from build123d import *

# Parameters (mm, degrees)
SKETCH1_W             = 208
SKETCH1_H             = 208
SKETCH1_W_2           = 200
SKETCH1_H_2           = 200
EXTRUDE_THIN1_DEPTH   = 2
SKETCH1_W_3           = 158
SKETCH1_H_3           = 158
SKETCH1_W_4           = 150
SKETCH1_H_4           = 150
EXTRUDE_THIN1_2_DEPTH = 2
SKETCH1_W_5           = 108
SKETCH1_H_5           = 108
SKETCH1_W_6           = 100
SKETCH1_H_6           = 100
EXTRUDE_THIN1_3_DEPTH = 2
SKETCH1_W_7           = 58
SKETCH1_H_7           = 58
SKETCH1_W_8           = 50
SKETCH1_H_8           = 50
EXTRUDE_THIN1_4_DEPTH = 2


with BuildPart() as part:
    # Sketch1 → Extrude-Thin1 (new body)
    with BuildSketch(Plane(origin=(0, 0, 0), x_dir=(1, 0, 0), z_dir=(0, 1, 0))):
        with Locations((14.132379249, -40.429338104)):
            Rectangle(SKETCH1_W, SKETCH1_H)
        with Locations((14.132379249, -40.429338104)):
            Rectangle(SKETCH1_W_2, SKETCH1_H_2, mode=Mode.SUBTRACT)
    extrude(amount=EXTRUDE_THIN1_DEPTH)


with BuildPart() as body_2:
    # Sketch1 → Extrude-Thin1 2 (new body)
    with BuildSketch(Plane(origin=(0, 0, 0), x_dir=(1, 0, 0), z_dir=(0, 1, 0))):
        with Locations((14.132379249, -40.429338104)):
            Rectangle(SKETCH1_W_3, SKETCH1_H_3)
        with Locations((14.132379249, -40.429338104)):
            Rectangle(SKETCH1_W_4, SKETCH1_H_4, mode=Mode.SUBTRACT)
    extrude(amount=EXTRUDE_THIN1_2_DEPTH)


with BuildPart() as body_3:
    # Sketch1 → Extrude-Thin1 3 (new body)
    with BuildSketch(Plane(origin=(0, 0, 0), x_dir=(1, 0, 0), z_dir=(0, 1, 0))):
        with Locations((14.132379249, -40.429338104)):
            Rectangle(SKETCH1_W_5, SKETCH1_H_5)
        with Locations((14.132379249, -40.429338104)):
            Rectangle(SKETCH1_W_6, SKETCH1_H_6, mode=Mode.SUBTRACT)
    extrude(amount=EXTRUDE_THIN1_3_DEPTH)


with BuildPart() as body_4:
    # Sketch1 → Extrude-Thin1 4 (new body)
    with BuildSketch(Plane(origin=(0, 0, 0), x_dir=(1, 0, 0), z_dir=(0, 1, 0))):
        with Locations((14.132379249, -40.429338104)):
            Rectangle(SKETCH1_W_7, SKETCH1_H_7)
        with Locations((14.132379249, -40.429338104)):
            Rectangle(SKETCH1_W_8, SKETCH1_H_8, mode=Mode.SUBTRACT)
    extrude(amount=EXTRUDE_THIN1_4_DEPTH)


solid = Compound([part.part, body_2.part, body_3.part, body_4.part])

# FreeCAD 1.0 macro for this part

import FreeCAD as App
import Part
import Sketcher
from FreeCAD import Vector
Q = App.Units.Quantity

doc = App.newDocument("Part")
body = doc.addObject("PartDesign::Body", "Body")

# Sketch on XZ plane
sketch1 = doc.addObject("Sketcher::SketchObject", "Sketch")
body.addObject(sketch1)
sketch1.AttachmentSupport = (doc.XZ_Plane, [""])
sketch1.MapMode = "FlatFace"
sketch1.addGeometry(Part.LineSegment(Vector(-89.867621, -63.570662, 0), Vector(-89.867621, 144.429338, 0)), False)
sketch1.addGeometry(Part.LineSegment(Vector(-89.867621, 144.429338, 0), Vector(118.132379, 144.429338, 0)), False)
sketch1.addGeometry(Part.LineSegment(Vector(118.132379, 144.429338, 0), Vector(118.132379, -63.570662, 0)), False)
sketch1.addGeometry(Part.LineSegment(Vector(118.132379, -63.570662, 0), Vector(-89.867621, -63.570662, 0)), False)
sketch1.addGeometry(Part.LineSegment(Vector(114.132379, 140.429338, 0), Vector(-85.867621, 140.429338, 0)), False)
sketch1.addGeometry(Part.LineSegment(Vector(-85.867621, 140.429338, 0), Vector(-85.867621, -59.570662, 0)), False)
sketch1.addGeometry(Part.LineSegment(Vector(-85.867621, -59.570662, 0), Vector(114.132379, -59.570662, 0)), False)
sketch1.addGeometry(Part.LineSegment(Vector(114.132379, -59.570662, 0), Vector(114.132379, 140.429338, 0)), False)
sketch1.addConstraint(Sketcher.Constraint("Coincident", 0, 2, 1, 1))
sketch1.addConstraint(Sketcher.Constraint("Coincident", 1, 2, 2, 1))
sketch1.addConstraint(Sketcher.Constraint("Coincident", 2, 2, 3, 1))
sketch1.addConstraint(Sketcher.Constraint("Coincident", 3, 2, 0, 1))
sketch1.addConstraint(Sketcher.Constraint("Coincident", 4, 2, 5, 1))
sketch1.addConstraint(Sketcher.Constraint("Coincident", 5, 2, 6, 1))
sketch1.addConstraint(Sketcher.Constraint("Coincident", 6, 2, 7, 1))
sketch1.addConstraint(Sketcher.Constraint("Coincident", 7, 2, 4, 1))
sketch1.addConstraint(Sketcher.Constraint("Vertical", 0))
sketch1.addConstraint(Sketcher.Constraint("Horizontal", 1))
sketch1.addConstraint(Sketcher.Constraint("Vertical", 2))
sketch1.addConstraint(Sketcher.Constraint("Horizontal", 3))
sketch1.addConstraint(Sketcher.Constraint("Horizontal", 4))
sketch1.addConstraint(Sketcher.Constraint("Vertical", 5))
sketch1.addConstraint(Sketcher.Constraint("Horizontal", 6))
sketch1.addConstraint(Sketcher.Constraint("Vertical", 7))
sketch1.addConstraint(Sketcher.Constraint("Equal", 3, 0))
sketch1.addConstraint(Sketcher.Constraint("Equal", 6, 5))
sketch1.addConstraint(Sketcher.Constraint("DistanceX", 1, 1, 1, 2, Q("208 mm")))
sketch1.addConstraint(Sketcher.Constraint("DistanceX", 4, 2, 4, 1, Q("200 mm")))
sketch1.addConstraint(Sketcher.Constraint("DistanceX", 0, 2, 4, 2, Q("4 mm")))
sketch1.addConstraint(Sketcher.Constraint("DistanceY", 4, 2, 0, 2, Q("4 mm")))
sketch1.addConstraint(Sketcher.Constraint("DistanceX", 0, 2, -1, 1, Q("89.867621 mm")))
sketch1.addConstraint(Sketcher.Constraint("DistanceY", -1, 1, 0, 2, Q("144.429338 mm")))
pad1 = doc.addObject("PartDesign::Pad", "Pad")
body.addObject(pad1)
pad1.Profile = sketch1
pad1.Length = 2
pad1.Reversed = True
body2 = doc.addObject("PartDesign::Body", "Body001")

# Sketch on XZ plane
sketch2 = doc.addObject("Sketcher::SketchObject", "Sketch001")
body2.addObject(sketch2)
sketch2.AttachmentSupport = (doc.getObject("XZ_Plane001"), [""])
sketch2.MapMode = "FlatFace"
sketch2.addGeometry(Part.LineSegment(Vector(-64.867621, -38.570662, 0), Vector(-64.867621, 119.429338, 0)), False)
sketch2.addGeometry(Part.LineSegment(Vector(-64.867621, 119.429338, 0), Vector(93.132379, 119.429338, 0)), False)
sketch2.addGeometry(Part.LineSegment(Vector(93.132379, 119.429338, 0), Vector(93.132379, -38.570662, 0)), False)
sketch2.addGeometry(Part.LineSegment(Vector(93.132379, -38.570662, 0), Vector(-64.867621, -38.570662, 0)), False)
sketch2.addGeometry(Part.LineSegment(Vector(89.132379, 115.429338, 0), Vector(-60.867621, 115.429338, 0)), False)
sketch2.addGeometry(Part.LineSegment(Vector(-60.867621, 115.429338, 0), Vector(-60.867621, -34.570662, 0)), False)
sketch2.addGeometry(Part.LineSegment(Vector(-60.867621, -34.570662, 0), Vector(89.132379, -34.570662, 0)), False)
sketch2.addGeometry(Part.LineSegment(Vector(89.132379, -34.570662, 0), Vector(89.132379, 115.429338, 0)), False)
sketch2.addConstraint(Sketcher.Constraint("Coincident", 0, 2, 1, 1))
sketch2.addConstraint(Sketcher.Constraint("Coincident", 1, 2, 2, 1))
sketch2.addConstraint(Sketcher.Constraint("Coincident", 2, 2, 3, 1))
sketch2.addConstraint(Sketcher.Constraint("Coincident", 3, 2, 0, 1))
sketch2.addConstraint(Sketcher.Constraint("Coincident", 4, 2, 5, 1))
sketch2.addConstraint(Sketcher.Constraint("Coincident", 5, 2, 6, 1))
sketch2.addConstraint(Sketcher.Constraint("Coincident", 6, 2, 7, 1))
sketch2.addConstraint(Sketcher.Constraint("Coincident", 7, 2, 4, 1))
sketch2.addConstraint(Sketcher.Constraint("Vertical", 0))
sketch2.addConstraint(Sketcher.Constraint("Horizontal", 1))
sketch2.addConstraint(Sketcher.Constraint("Vertical", 2))
sketch2.addConstraint(Sketcher.Constraint("Horizontal", 3))
sketch2.addConstraint(Sketcher.Constraint("Horizontal", 4))
sketch2.addConstraint(Sketcher.Constraint("Vertical", 5))
sketch2.addConstraint(Sketcher.Constraint("Horizontal", 6))
sketch2.addConstraint(Sketcher.Constraint("Vertical", 7))
sketch2.addConstraint(Sketcher.Constraint("Equal", 3, 0))
sketch2.addConstraint(Sketcher.Constraint("Equal", 6, 5))
sketch2.addConstraint(Sketcher.Constraint("DistanceX", 1, 1, 1, 2, Q("158 mm")))
sketch2.addConstraint(Sketcher.Constraint("DistanceX", 4, 2, 4, 1, Q("150 mm")))
sketch2.addConstraint(Sketcher.Constraint("DistanceX", 0, 2, 4, 2, Q("4 mm")))
sketch2.addConstraint(Sketcher.Constraint("DistanceY", 4, 2, 0, 2, Q("4 mm")))
sketch2.addConstraint(Sketcher.Constraint("DistanceX", 0, 2, -1, 1, Q("64.867621 mm")))
sketch2.addConstraint(Sketcher.Constraint("DistanceY", -1, 1, 0, 2, Q("119.429338 mm")))
pad2 = doc.addObject("PartDesign::Pad", "Pad001")
body2.addObject(pad2)
pad2.Profile = sketch2
pad2.Length = 2
pad2.Reversed = True
body3 = doc.addObject("PartDesign::Body", "Body002")

# Sketch on XZ plane
sketch3 = doc.addObject("Sketcher::SketchObject", "Sketch002")
body3.addObject(sketch3)
sketch3.AttachmentSupport = (doc.getObject("XZ_Plane002"), [""])
sketch3.MapMode = "FlatFace"
sketch3.addGeometry(Part.LineSegment(Vector(-39.867621, -13.570662, 0), Vector(-39.867621, 94.429338, 0)), False)
sketch3.addGeometry(Part.LineSegment(Vector(-39.867621, 94.429338, 0), Vector(68.132379, 94.429338, 0)), False)
sketch3.addGeometry(Part.LineSegment(Vector(68.132379, 94.429338, 0), Vector(68.132379, -13.570662, 0)), False)
sketch3.addGeometry(Part.LineSegment(Vector(68.132379, -13.570662, 0), Vector(-39.867621, -13.570662, 0)), False)
sketch3.addGeometry(Part.LineSegment(Vector(64.132379, 90.429338, 0), Vector(-35.867621, 90.429338, 0)), False)
sketch3.addGeometry(Part.LineSegment(Vector(-35.867621, 90.429338, 0), Vector(-35.867621, -9.570662, 0)), False)
sketch3.addGeometry(Part.LineSegment(Vector(-35.867621, -9.570662, 0), Vector(64.132379, -9.570662, 0)), False)
sketch3.addGeometry(Part.LineSegment(Vector(64.132379, -9.570662, 0), Vector(64.132379, 90.429338, 0)), False)
sketch3.addConstraint(Sketcher.Constraint("Coincident", 0, 2, 1, 1))
sketch3.addConstraint(Sketcher.Constraint("Coincident", 1, 2, 2, 1))
sketch3.addConstraint(Sketcher.Constraint("Coincident", 2, 2, 3, 1))
sketch3.addConstraint(Sketcher.Constraint("Coincident", 3, 2, 0, 1))
sketch3.addConstraint(Sketcher.Constraint("Coincident", 4, 2, 5, 1))
sketch3.addConstraint(Sketcher.Constraint("Coincident", 5, 2, 6, 1))
sketch3.addConstraint(Sketcher.Constraint("Coincident", 6, 2, 7, 1))
sketch3.addConstraint(Sketcher.Constraint("Coincident", 7, 2, 4, 1))
sketch3.addConstraint(Sketcher.Constraint("Vertical", 0))
sketch3.addConstraint(Sketcher.Constraint("Horizontal", 1))
sketch3.addConstraint(Sketcher.Constraint("Vertical", 2))
sketch3.addConstraint(Sketcher.Constraint("Horizontal", 3))
sketch3.addConstraint(Sketcher.Constraint("Horizontal", 4))
sketch3.addConstraint(Sketcher.Constraint("Vertical", 5))
sketch3.addConstraint(Sketcher.Constraint("Horizontal", 6))
sketch3.addConstraint(Sketcher.Constraint("Vertical", 7))
sketch3.addConstraint(Sketcher.Constraint("Equal", 3, 0))
sketch3.addConstraint(Sketcher.Constraint("Equal", 6, 5))
sketch3.addConstraint(Sketcher.Constraint("DistanceX", 1, 1, 1, 2, Q("108 mm")))
sketch3.addConstraint(Sketcher.Constraint("DistanceX", 4, 2, 4, 1, Q("100 mm")))
sketch3.addConstraint(Sketcher.Constraint("DistanceX", 0, 2, 4, 2, Q("4 mm")))
sketch3.addConstraint(Sketcher.Constraint("DistanceY", 4, 2, 0, 2, Q("4 mm")))
sketch3.addConstraint(Sketcher.Constraint("DistanceX", 0, 2, -1, 1, Q("39.867621 mm")))
sketch3.addConstraint(Sketcher.Constraint("DistanceY", -1, 1, 0, 2, Q("94.429338 mm")))
pad3 = doc.addObject("PartDesign::Pad", "Pad002")
body3.addObject(pad3)
pad3.Profile = sketch3
pad3.Length = 2
pad3.Reversed = True
body4 = doc.addObject("PartDesign::Body", "Body003")

# Sketch on XZ plane
sketch4 = doc.addObject("Sketcher::SketchObject", "Sketch003")
body4.addObject(sketch4)
sketch4.AttachmentSupport = (doc.getObject("XZ_Plane003"), [""])
sketch4.MapMode = "FlatFace"
sketch4.addGeometry(Part.LineSegment(Vector(-14.867621, 11.429338, 0), Vector(-14.867621, 69.429338, 0)), False)
sketch4.addGeometry(Part.LineSegment(Vector(-14.867621, 69.429338, 0), Vector(43.132379, 69.429338, 0)), False)
sketch4.addGeometry(Part.LineSegment(Vector(43.132379, 69.429338, 0), Vector(43.132379, 11.429338, 0)), False)
sketch4.addGeometry(Part.LineSegment(Vector(43.132379, 11.429338, 0), Vector(-14.867621, 11.429338, 0)), False)
sketch4.addGeometry(Part.LineSegment(Vector(39.132379, 65.429338, 0), Vector(-10.867621, 65.429338, 0)), False)
sketch4.addGeometry(Part.LineSegment(Vector(-10.867621, 65.429338, 0), Vector(-10.867621, 15.429338, 0)), False)
sketch4.addGeometry(Part.LineSegment(Vector(-10.867621, 15.429338, 0), Vector(39.132379, 15.429338, 0)), False)
sketch4.addGeometry(Part.LineSegment(Vector(39.132379, 15.429338, 0), Vector(39.132379, 65.429338, 0)), False)
sketch4.addConstraint(Sketcher.Constraint("Coincident", 0, 2, 1, 1))
sketch4.addConstraint(Sketcher.Constraint("Coincident", 1, 2, 2, 1))
sketch4.addConstraint(Sketcher.Constraint("Coincident", 2, 2, 3, 1))
sketch4.addConstraint(Sketcher.Constraint("Coincident", 3, 2, 0, 1))
sketch4.addConstraint(Sketcher.Constraint("Coincident", 4, 2, 5, 1))
sketch4.addConstraint(Sketcher.Constraint("Coincident", 5, 2, 6, 1))
sketch4.addConstraint(Sketcher.Constraint("Coincident", 6, 2, 7, 1))
sketch4.addConstraint(Sketcher.Constraint("Coincident", 7, 2, 4, 1))
sketch4.addConstraint(Sketcher.Constraint("Vertical", 0))
sketch4.addConstraint(Sketcher.Constraint("Horizontal", 1))
sketch4.addConstraint(Sketcher.Constraint("Vertical", 2))
sketch4.addConstraint(Sketcher.Constraint("Horizontal", 3))
sketch4.addConstraint(Sketcher.Constraint("Horizontal", 4))
sketch4.addConstraint(Sketcher.Constraint("Vertical", 5))
sketch4.addConstraint(Sketcher.Constraint("Horizontal", 6))
sketch4.addConstraint(Sketcher.Constraint("Vertical", 7))
sketch4.addConstraint(Sketcher.Constraint("Equal", 3, 0))
sketch4.addConstraint(Sketcher.Constraint("Equal", 6, 5))
sketch4.addConstraint(Sketcher.Constraint("DistanceX", 1, 1, 1, 2, Q("58 mm")))
sketch4.addConstraint(Sketcher.Constraint("DistanceX", 4, 2, 4, 1, Q("50 mm")))
sketch4.addConstraint(Sketcher.Constraint("DistanceX", 0, 2, 4, 2, Q("4 mm")))
sketch4.addConstraint(Sketcher.Constraint("DistanceY", 4, 2, 0, 2, Q("4 mm")))
sketch4.addConstraint(Sketcher.Constraint("DistanceX", 0, 2, -1, 1, Q("14.867621 mm")))
sketch4.addConstraint(Sketcher.Constraint("DistanceY", -1, 1, 0, 2, Q("69.429338 mm")))
pad4 = doc.addObject("PartDesign::Pad", "Pad003")
body4.addObject(pad4)
pad4.Profile = sketch4
pad4.Length = 2
pad4.Reversed = True

doc.recompute()
